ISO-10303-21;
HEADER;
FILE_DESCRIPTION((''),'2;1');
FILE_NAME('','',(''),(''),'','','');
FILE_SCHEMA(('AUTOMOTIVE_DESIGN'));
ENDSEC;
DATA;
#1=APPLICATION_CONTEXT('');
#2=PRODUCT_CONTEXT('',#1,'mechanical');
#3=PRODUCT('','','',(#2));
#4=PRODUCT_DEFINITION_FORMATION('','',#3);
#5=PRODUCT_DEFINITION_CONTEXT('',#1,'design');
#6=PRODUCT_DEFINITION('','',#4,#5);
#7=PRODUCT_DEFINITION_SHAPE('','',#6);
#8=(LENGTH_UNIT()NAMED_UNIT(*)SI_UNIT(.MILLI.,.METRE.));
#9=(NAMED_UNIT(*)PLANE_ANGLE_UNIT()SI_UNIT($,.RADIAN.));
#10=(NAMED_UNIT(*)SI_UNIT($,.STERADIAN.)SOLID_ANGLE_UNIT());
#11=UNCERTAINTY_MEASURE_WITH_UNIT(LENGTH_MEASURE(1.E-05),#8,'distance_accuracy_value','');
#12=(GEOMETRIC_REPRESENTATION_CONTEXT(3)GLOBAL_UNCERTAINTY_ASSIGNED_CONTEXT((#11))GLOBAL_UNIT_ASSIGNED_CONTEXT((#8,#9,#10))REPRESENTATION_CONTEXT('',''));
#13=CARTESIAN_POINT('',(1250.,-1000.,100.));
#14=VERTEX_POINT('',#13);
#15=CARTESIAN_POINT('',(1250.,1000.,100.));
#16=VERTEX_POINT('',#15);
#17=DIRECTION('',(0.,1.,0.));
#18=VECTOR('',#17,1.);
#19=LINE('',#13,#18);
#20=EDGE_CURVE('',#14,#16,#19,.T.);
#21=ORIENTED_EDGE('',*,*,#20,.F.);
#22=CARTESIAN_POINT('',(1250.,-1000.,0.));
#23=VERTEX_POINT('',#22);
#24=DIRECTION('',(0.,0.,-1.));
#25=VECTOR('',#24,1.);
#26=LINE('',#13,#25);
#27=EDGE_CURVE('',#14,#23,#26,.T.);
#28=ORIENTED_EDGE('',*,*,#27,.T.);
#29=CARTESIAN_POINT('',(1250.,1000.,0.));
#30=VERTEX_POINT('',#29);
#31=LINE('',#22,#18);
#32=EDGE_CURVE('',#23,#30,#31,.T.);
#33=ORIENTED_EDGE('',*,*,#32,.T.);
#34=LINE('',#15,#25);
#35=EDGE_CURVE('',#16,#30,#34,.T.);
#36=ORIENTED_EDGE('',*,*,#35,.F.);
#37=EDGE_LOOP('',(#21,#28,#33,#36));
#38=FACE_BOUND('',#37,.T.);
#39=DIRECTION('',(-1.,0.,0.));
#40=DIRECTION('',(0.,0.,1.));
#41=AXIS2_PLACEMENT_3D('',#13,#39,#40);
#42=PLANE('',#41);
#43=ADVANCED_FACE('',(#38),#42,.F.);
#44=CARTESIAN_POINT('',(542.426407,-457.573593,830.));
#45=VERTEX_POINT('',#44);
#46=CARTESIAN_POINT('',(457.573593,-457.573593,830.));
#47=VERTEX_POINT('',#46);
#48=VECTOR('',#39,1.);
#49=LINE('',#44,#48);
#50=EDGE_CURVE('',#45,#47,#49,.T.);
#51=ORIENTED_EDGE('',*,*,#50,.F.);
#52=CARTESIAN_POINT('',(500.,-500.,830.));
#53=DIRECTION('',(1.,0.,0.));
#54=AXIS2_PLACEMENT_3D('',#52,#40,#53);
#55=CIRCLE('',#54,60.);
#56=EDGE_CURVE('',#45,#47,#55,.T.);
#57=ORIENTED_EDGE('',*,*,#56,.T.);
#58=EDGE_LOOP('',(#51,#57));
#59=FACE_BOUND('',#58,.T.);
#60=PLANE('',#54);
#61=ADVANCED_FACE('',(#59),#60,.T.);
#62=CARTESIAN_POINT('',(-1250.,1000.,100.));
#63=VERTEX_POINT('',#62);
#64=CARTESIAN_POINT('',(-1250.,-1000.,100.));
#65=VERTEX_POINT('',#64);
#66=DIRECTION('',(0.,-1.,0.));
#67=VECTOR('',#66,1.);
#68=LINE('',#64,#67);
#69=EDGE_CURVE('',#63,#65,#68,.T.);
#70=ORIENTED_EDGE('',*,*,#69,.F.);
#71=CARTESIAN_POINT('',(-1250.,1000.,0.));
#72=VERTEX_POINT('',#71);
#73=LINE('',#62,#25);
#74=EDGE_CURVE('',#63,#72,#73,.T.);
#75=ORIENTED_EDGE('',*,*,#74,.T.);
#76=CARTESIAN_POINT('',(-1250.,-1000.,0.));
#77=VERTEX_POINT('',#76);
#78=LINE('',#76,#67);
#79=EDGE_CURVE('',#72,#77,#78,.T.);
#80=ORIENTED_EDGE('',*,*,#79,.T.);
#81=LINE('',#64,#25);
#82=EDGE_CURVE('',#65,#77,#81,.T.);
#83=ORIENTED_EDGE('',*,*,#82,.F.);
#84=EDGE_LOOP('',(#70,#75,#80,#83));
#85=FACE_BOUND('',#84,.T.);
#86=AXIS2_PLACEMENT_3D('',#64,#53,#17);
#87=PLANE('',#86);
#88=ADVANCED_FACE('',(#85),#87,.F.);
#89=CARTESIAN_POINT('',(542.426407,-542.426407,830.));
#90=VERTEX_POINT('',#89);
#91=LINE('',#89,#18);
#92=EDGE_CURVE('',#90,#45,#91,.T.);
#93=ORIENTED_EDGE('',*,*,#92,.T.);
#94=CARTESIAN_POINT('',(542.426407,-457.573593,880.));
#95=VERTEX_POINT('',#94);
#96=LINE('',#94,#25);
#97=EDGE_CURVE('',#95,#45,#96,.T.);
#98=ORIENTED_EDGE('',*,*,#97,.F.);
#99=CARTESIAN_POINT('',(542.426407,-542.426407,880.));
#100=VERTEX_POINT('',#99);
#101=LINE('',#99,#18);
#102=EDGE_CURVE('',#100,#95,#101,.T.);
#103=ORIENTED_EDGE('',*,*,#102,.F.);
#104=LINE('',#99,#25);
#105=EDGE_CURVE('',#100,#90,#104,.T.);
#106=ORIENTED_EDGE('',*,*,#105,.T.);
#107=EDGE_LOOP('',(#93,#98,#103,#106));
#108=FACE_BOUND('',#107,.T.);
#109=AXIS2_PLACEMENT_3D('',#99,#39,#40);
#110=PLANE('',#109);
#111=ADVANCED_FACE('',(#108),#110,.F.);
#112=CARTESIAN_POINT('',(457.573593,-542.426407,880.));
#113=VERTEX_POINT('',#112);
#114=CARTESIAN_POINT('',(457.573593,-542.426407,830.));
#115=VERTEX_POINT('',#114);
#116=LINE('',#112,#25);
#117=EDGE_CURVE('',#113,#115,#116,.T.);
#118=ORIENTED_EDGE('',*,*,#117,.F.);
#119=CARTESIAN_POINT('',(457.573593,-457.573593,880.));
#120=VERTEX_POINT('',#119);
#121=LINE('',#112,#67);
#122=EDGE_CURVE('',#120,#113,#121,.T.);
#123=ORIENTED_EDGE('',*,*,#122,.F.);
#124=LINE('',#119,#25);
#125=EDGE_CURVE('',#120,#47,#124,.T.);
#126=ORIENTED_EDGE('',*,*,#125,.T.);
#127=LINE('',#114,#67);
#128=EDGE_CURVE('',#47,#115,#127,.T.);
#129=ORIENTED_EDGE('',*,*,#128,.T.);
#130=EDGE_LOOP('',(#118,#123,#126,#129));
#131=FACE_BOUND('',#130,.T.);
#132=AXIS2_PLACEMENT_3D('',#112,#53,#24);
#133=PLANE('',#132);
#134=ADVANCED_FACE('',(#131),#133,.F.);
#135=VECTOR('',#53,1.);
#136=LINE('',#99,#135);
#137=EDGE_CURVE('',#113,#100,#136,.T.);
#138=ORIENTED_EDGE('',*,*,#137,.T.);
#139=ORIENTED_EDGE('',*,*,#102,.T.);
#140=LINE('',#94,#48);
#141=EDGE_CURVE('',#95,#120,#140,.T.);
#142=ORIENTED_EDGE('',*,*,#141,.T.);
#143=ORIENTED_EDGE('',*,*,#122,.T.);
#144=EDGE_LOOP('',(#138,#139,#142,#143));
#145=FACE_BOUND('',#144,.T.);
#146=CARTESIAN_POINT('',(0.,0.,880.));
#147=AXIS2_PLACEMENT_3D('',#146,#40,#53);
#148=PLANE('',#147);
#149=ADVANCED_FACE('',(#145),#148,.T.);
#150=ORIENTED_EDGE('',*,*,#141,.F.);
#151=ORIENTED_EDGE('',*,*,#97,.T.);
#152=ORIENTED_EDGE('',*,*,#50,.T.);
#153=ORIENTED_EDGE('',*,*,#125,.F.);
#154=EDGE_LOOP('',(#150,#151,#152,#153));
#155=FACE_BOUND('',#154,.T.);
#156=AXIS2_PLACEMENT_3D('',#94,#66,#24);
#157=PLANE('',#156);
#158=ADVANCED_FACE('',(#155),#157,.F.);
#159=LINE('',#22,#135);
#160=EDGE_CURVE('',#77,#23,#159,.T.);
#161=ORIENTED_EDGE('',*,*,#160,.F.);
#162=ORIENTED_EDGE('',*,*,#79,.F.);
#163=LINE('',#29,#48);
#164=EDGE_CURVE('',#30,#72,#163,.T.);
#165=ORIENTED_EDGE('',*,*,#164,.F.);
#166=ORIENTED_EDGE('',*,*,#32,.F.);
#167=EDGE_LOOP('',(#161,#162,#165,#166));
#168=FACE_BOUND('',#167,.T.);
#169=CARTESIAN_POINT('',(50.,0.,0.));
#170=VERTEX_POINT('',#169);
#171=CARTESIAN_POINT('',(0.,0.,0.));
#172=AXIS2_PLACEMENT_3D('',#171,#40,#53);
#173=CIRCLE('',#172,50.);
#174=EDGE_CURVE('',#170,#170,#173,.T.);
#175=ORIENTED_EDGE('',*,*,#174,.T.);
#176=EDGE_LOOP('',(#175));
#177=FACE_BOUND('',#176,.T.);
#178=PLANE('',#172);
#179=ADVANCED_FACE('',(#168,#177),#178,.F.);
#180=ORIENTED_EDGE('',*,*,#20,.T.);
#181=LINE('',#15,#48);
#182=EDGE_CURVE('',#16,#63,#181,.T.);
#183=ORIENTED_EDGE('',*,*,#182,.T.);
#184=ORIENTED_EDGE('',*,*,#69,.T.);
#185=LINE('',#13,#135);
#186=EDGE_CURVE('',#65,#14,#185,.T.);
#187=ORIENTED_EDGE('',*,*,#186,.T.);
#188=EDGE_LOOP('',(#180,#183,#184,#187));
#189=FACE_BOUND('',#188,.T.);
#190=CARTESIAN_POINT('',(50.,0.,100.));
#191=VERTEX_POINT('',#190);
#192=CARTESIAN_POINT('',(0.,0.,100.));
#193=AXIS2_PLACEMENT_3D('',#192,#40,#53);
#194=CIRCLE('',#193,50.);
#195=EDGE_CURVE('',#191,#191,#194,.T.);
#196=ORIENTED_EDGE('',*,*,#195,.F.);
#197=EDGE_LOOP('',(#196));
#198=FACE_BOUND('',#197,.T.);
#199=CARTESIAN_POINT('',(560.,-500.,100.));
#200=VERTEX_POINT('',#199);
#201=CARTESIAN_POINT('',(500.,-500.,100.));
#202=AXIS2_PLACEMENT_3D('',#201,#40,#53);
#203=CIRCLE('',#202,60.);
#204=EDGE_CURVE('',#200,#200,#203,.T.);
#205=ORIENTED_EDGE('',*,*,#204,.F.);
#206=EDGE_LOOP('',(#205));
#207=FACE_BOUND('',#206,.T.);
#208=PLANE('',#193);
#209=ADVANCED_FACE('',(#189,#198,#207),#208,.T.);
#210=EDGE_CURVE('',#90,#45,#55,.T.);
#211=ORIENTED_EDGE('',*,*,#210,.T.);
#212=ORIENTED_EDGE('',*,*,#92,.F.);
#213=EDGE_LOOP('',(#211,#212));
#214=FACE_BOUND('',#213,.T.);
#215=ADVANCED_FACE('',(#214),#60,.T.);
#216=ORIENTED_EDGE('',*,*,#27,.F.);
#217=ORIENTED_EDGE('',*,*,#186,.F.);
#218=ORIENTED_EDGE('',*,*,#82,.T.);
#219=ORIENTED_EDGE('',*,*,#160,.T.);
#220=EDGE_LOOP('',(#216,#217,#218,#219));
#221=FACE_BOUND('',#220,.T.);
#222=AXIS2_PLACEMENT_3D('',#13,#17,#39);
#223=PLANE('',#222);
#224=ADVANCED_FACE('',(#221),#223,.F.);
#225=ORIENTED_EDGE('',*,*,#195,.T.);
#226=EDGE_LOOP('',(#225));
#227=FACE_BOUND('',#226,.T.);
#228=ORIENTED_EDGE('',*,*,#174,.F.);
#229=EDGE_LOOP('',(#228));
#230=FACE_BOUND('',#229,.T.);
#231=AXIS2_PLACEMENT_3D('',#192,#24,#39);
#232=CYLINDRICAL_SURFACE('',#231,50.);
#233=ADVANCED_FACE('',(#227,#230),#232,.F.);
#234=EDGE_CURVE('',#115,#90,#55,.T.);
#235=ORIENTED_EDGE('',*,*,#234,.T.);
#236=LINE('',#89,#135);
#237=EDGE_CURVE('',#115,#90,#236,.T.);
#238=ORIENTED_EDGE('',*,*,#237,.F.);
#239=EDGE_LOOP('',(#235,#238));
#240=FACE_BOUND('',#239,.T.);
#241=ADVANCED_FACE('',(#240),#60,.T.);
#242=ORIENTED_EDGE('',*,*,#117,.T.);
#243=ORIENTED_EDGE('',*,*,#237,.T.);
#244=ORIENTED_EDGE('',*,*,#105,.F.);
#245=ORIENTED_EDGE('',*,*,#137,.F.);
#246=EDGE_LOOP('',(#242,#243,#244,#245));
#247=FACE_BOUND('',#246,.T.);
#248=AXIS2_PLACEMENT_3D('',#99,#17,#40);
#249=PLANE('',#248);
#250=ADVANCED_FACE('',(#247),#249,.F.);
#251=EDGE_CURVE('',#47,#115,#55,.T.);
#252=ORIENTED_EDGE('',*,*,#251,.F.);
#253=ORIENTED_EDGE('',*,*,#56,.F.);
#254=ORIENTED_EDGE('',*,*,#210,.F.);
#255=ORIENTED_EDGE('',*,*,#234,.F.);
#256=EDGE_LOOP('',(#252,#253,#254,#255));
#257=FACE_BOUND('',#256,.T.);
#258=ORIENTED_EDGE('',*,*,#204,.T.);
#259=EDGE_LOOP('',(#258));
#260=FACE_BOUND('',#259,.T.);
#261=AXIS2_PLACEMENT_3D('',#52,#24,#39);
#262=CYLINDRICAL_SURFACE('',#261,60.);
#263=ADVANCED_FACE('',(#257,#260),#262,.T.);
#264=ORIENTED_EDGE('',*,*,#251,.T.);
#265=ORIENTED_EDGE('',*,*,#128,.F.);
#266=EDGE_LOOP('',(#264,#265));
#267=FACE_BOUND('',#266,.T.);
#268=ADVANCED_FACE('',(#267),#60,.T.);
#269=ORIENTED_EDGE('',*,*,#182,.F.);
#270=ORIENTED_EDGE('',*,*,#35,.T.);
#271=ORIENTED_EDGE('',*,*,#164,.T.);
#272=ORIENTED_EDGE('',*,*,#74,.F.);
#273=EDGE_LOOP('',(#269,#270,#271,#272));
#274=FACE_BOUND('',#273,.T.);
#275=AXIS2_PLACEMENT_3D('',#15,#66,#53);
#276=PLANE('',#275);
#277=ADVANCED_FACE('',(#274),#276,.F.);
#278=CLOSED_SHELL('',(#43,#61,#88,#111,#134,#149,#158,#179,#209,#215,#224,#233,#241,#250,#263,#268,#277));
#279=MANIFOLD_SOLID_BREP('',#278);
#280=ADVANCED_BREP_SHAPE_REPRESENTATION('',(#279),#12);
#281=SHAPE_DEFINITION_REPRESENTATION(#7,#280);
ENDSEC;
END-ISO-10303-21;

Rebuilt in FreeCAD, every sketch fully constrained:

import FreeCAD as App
import Part
import Sketcher


def add_polygon(sketch, points):
    """Adds a closed chain of lines whose ends are joined by coincident constraints."""
    first, n = sketch.GeometryCount, len(points)
    for a, b in zip(points, points[1:] + points[:1]):
        sketch.addGeometry(Part.LineSegment(App.Vector(*a, 0), App.Vector(*b, 0)), False)
    for i in range(n):
        sketch.addConstraint(Sketcher.Constraint("Coincident", first + i, 2, first + (i + 1) % n, 1))

doc = App.newDocument("Part")
body = doc.addObject("PartDesign::Body", "Body")

sketch1 = body.newObject("Sketcher::SketchObject", "Sketch")
sketch1.AttachmentSupport = (doc.getObject("XY_Plane"), [""])
sketch1.MapMode = "FlatFace"
add_polygon(sketch1, [(-1250, 1000), (-1250, -1000), (1250, -1000), (1250, 1000)])
sketch1.addGeometry(Part.Circle(App.Vector(0, 0, 0), App.Vector(0, 0, 1), 50), False)
sketch1.addConstraint(Sketcher.Constraint("Vertical", 0))
sketch1.addConstraint(Sketcher.Constraint("Horizontal", 1))
sketch1.addConstraint(Sketcher.Constraint("Vertical", 2))
sketch1.addConstraint(Sketcher.Constraint("Horizontal", 3))
sketch1.addConstraint(Sketcher.Constraint("Coincident", 4, 3, -1, 1))
sketch1.addConstraint(Sketcher.Constraint("Symmetric", 0, 2, 2, 2, -1, 1))
sketch1.addConstraint(Sketcher.Constraint("Diameter", 4, 100.0))
sketch1.addConstraint(Sketcher.Constraint("DistanceX", 1, 1, 1, 2, 2500.0))
sketch1.addConstraint(Sketcher.Constraint("DistanceY", 0, 2, 0, 1, 2000.0))
pad1 = body.newObject("PartDesign::Pad", "Pad")
pad1.Profile = sketch1
pad1.Length = 100

sketch2 = body.newObject("Sketcher::SketchObject", "Sketch001")
sketch2.AttachmentSupport = (doc.getObject("XY_Plane"), [""])
sketch2.MapMode = "FlatFace"
sketch2.AttachmentOffset = App.Placement(App.Vector(0, 0, 100), App.Rotation())
sketch2.addGeometry(Part.Circle(App.Vector(500, -500, 0), App.Vector(0, 0, 1), 60), False)
sketch2.addConstraint(Sketcher.Constraint("Diameter", 0, 120.0))
sketch2.addConstraint(Sketcher.Constraint("DistanceX", -1, 1, 0, 3, 500.0))
sketch2.addConstraint(Sketcher.Constraint("DistanceY", 0, 3, -1, 1, 500.0))
pad2 = body.newObject("PartDesign::Pad", "Pad001")
pad2.Profile = sketch2
pad2.Length = 730

sketch3 = body.newObject("Sketcher::SketchObject", "Sketch002")
sketch3.AttachmentSupport = (doc.getObject("XY_Plane"), [""])
sketch3.MapMode = "FlatFace"
sketch3.AttachmentOffset = App.Placement(App.Vector(0, 0, 830), App.Rotation())
add_polygon(sketch3, [(458, -458), (458, -542), (542, -542), (542, -458)])
sketch3.addConstraint(Sketcher.Constraint("Vertical", 0))
sketch3.addConstraint(Sketcher.Constraint("Horizontal", 1))
sketch3.addConstraint(Sketcher.Constraint("Vertical", 2))
sketch3.addConstraint(Sketcher.Constraint("Horizontal", 3))
sketch3.addConstraint(Sketcher.Constraint("Equal", 3, 0))
sketch3.addConstraint(Sketcher.Constraint("DistanceX", 1, 1, 1, 2, 84.852814))
sketch3.addConstraint(Sketcher.Constraint("DistanceX", -1, 1, 0, 2, 457.573593))
sketch3.addConstraint(Sketcher.Constraint("DistanceY", 0, 2, -1, 1, 542.426407))
pad3 = body.newObject("PartDesign::Pad", "Pad002")
pad3.Profile = sketch3
pad3.Length = 50

doc.recompute()
